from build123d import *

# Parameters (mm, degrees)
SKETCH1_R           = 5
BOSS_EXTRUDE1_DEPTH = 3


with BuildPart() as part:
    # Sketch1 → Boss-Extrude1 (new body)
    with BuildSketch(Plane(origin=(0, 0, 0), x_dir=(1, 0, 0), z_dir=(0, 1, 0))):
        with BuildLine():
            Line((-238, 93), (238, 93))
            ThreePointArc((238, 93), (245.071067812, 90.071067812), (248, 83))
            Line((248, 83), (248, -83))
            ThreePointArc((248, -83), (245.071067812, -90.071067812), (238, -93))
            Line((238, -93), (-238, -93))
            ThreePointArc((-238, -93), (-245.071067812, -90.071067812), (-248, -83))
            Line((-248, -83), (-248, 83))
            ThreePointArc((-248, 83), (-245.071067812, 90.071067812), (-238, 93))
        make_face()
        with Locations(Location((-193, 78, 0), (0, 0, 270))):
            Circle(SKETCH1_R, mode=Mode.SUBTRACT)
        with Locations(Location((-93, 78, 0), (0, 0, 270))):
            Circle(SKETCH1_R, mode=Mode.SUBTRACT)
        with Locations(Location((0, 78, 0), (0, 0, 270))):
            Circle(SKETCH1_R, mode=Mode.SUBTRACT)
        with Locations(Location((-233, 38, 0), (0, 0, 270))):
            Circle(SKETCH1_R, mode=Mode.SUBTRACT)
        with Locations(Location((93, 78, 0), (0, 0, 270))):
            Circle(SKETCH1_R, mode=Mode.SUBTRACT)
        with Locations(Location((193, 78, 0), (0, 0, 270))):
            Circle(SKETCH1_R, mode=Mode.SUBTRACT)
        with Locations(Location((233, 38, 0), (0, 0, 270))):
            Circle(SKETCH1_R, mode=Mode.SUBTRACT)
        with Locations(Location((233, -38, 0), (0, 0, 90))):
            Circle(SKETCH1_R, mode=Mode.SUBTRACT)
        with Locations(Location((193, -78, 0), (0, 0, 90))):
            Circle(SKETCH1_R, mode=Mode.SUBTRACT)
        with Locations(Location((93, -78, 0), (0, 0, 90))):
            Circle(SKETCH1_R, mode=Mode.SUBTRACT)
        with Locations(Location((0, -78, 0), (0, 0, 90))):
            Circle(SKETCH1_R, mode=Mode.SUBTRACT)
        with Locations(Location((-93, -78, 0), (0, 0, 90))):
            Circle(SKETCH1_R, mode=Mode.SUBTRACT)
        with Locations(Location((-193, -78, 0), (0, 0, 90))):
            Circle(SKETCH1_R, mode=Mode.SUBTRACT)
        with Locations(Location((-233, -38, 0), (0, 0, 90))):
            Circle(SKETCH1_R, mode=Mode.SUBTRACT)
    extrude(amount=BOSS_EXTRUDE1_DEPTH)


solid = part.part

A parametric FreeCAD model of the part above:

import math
import FreeCAD as App
import Part
import Sketcher
from FreeCAD import Vector

doc = App.newDocument("Part")
body = doc.addObject("PartDesign::Body", "Body")

# Sketch on XZ plane
sketch1 = body.newObject("Sketcher::SketchObject", "Sketch")
sketch1.AttachmentSupport = (doc.getObject("XZ_Plane"), [""])
sketch1.MapMode = "FlatFace"
sketch1.addGeometry(Part.LineSegment(Vector(238, -93, 0), Vector(-238, -93, 0)), False)
sketch1.addGeometry(Part.ArcOfCircle(Part.Circle(Vector(-238, -83, 0), Vector(0, 0, 1), 10), math.radians(180), math.radians(270)), False)
sketch1.addGeometry(Part.LineSegment(Vector(-248, -83, 0), Vector(-248, 83, 0)), False)
sketch1.addGeometry(Part.ArcOfCircle(Part.Circle(Vector(-238, 83, 0), Vector(0, 0, 1), 10), math.radians(90), math.radians(180)), False)
sketch1.addGeometry(Part.LineSegment(Vector(-238, 93, 0), Vector(238, 93, 0)), False)
sketch1.addGeometry(Part.ArcOfCircle(Part.Circle(Vector(238, 83, 0), Vector(0, 0, 1), 10), math.radians(0), math.radians(90)), False)
sketch1.addGeometry(Part.LineSegment(Vector(248, 83, 0), Vector(248, -83, 0)), False)
sketch1.addGeometry(Part.ArcOfCircle(Part.Circle(Vector(238, -83, 0), Vector(0, 0, 1), 10), math.radians(-90), math.radians(0)), False)
sketch1.addGeometry(Part.Circle(Vector(193, 78, 0), Vector(0, 0, 1), 5), False)
sketch1.addGeometry(Part.Circle(Vector(93, 78, 0), Vector(0, 0, 1), 5), False)
sketch1.addGeometry(Part.Circle(Vector(233, 38, 0), Vector(0, 0, 1), 5), False)
sketch1.addGeometry(Part.Circle(Vector(0, 78, 0), Vector(0, 0, 1), 5), False)
sketch1.addGeometry(Part.Circle(Vector(-93, 78, 0), Vector(0, 0, 1), 5), False)
sketch1.addGeometry(Part.Circle(Vector(-193, 78, 0), Vector(0, 0, 1), 5), False)
sketch1.addGeometry(Part.Circle(Vector(-233, 38, 0), Vector(0, 0, 1), 5), False)
sketch1.addGeometry(Part.Circle(Vector(233, -38, 0), Vector(0, 0, 1), 5), False)
sketch1.addGeometry(Part.Circle(Vector(193, -78, 0), Vector(0, 0, 1), 5), False)
sketch1.addGeometry(Part.Circle(Vector(93, -78, 0), Vector(0, 0, 1), 5), False)
sketch1.addGeometry(Part.Circle(Vector(-233, -38, 0), Vector(0, 0, 1), 5), False)
sketch1.addGeometry(Part.Circle(Vector(0, -78, 0), Vector(0, 0, 1), 5), False)
sketch1.addGeometry(Part.Circle(Vector(-93, -78, 0), Vector(0, 0, 1), 5), False)
sketch1.addGeometry(Part.Circle(Vector(-193, -78, 0), Vector(0, 0, 1), 5), False)
sketch1.addConstraint(Sketcher.Constraint("Tangent", 0, 2, 1, 2))
sketch1.addConstraint(Sketcher.Constraint("Tangent", 1, 1, 2, 1))
sketch1.addConstraint(Sketcher.Constraint("Tangent", 2, 2, 3, 2))
sketch1.addConstraint(Sketcher.Constraint("Tangent", 3, 1, 4, 1))
sketch1.addConstraint(Sketcher.Constraint("Tangent", 4, 2, 5, 2))
sketch1.addConstraint(Sketcher.Constraint("Tangent", 5, 1, 6, 1))
sketch1.addConstraint(Sketcher.Constraint("Tangent", 6, 2, 7, 2))
sketch1.addConstraint(Sketcher.Constraint("Tangent", 7, 1, 0, 1))
sketch1.addConstraint(Sketcher.Constraint("Horizontal", 0))
sketch1.addConstraint(Sketcher.Constraint("Vertical", 2))
sketch1.addConstraint(Sketcher.Constraint("Horizontal", 4))
sketch1.addConstraint(Sketcher.Constraint("Vertical", 6))
sketch1.addConstraint(Sketcher.Constraint("Equal", 1, 3))
sketch1.addConstraint(Sketcher.Constraint("Equal", 3, 5))
sketch1.addConstraint(Sketcher.Constraint("Equal", 5, 7))
sketch1.addConstraint(Sketcher.Constraint("Equal", 8, 9))
sketch1.addConstraint(Sketcher.Constraint("Equal", 9, 10))
sketch1.addConstraint(Sketcher.Constraint("Equal", 10, 11))
sketch1.addConstraint(Sketcher.Constraint("Equal", 11, 12))
sketch1.addConstraint(Sketcher.Constraint("Equal", 12, 13))
sketch1.addConstraint(Sketcher.Constraint("Equal", 13, 14))
sketch1.addConstraint(Sketcher.Constraint("Equal", 14, 15))
sketch1.addConstraint(Sketcher.Constraint("Equal", 15, 16))
sketch1.addConstraint(Sketcher.Constraint("Equal", 16, 17))
sketch1.addConstraint(Sketcher.Constraint("Equal", 17, 18))
sketch1.addConstraint(Sketcher.Constraint("Equal", 18, 19))
sketch1.addConstraint(Sketcher.Constraint("Equal", 19, 20))
sketch1.addConstraint(Sketcher.Constraint("Equal", 20, 21))
sketch1.addConstraint(Sketcher.Constraint("Symmetric", 1, 3, 5, 3, -1, 1))
sketch1.addConstraint(Sketcher.Constraint("Symmetric", 14, 3, 15, 3, -1, 1))
sketch1.addConstraint(Sketcher.Constraint("Symmetric", 13, 3, 16, 3, -1, 1))
sketch1.addConstraint(Sketcher.Constraint("Symmetric", 12, 3, 17, 3, -1, 1))
sketch1.addConstraint(Sketcher.Constraint("Symmetric", 10, 3, 18, 3, -1, 1))
sketch1.addConstraint(Sketcher.Constraint("Symmetric", 11, 3, 19, 3, -1, 1))
sketch1.addConstraint(Sketcher.Constraint("Symmetric", 9, 3, 20, 3, -1, 1))
sketch1.addConstraint(Sketcher.Constraint("Symmetric", 8, 3, 21, 3, -1, 1))
sketch1.addConstraint(Sketcher.Constraint("Symmetric", 9, 3, 12, 3, -2))
sketch1.addConstraint(Sketcher.Constraint("Symmetric", 8, 3, 13, 3, -2))
sketch1.addConstraint(Sketcher.Constraint("Symmetric", 10, 3, 14, 3, -2))
sketch1.addConstraint(Sketcher.Constraint("PointOnObject", 11, 3, -2))
sketch1.addConstraint(Sketcher.Constraint("Horizontal", 8, 3, 9, 3))
sketch1.addConstraint(Sketcher.Constraint("Horizontal", 9, 3, 11, 3))
sketch1.addConstraint(Sketcher.Constraint("Diameter", 8, 10.0))
sketch1.addConstraint(Sketcher.Constraint("Radius", 1, 10.0))
sketch1.addConstraint(Sketcher.Constraint("DistanceX", 0, 2, 0, 1, 476.0))
sketch1.addConstraint(Sketcher.Constraint("DistanceY", 2, 1, 2, 2, 166.0))
sketch1.addConstraint(Sketcher.Constraint("DistanceX", -1, 1, 8, 3, 193.0))
sketch1.addConstraint(Sketcher.Constraint("DistanceY", -1, 1, 8, 3, 78.0))
sketch1.addConstraint(Sketcher.Constraint("DistanceX", -1, 1, 9, 3, 93.0))
sketch1.addConstraint(Sketcher.Constraint("DistanceX", -1, 1, 10, 3, 233.0))
sketch1.addConstraint(Sketcher.Constraint("DistanceY", -1, 1, 10, 3, 38.0))
pad1 = body.newObject("PartDesign::Pad", "Pad")
pad1.Profile = sketch1
pad1.Length = 3
pad1.Reversed = True

doc.recompute()
